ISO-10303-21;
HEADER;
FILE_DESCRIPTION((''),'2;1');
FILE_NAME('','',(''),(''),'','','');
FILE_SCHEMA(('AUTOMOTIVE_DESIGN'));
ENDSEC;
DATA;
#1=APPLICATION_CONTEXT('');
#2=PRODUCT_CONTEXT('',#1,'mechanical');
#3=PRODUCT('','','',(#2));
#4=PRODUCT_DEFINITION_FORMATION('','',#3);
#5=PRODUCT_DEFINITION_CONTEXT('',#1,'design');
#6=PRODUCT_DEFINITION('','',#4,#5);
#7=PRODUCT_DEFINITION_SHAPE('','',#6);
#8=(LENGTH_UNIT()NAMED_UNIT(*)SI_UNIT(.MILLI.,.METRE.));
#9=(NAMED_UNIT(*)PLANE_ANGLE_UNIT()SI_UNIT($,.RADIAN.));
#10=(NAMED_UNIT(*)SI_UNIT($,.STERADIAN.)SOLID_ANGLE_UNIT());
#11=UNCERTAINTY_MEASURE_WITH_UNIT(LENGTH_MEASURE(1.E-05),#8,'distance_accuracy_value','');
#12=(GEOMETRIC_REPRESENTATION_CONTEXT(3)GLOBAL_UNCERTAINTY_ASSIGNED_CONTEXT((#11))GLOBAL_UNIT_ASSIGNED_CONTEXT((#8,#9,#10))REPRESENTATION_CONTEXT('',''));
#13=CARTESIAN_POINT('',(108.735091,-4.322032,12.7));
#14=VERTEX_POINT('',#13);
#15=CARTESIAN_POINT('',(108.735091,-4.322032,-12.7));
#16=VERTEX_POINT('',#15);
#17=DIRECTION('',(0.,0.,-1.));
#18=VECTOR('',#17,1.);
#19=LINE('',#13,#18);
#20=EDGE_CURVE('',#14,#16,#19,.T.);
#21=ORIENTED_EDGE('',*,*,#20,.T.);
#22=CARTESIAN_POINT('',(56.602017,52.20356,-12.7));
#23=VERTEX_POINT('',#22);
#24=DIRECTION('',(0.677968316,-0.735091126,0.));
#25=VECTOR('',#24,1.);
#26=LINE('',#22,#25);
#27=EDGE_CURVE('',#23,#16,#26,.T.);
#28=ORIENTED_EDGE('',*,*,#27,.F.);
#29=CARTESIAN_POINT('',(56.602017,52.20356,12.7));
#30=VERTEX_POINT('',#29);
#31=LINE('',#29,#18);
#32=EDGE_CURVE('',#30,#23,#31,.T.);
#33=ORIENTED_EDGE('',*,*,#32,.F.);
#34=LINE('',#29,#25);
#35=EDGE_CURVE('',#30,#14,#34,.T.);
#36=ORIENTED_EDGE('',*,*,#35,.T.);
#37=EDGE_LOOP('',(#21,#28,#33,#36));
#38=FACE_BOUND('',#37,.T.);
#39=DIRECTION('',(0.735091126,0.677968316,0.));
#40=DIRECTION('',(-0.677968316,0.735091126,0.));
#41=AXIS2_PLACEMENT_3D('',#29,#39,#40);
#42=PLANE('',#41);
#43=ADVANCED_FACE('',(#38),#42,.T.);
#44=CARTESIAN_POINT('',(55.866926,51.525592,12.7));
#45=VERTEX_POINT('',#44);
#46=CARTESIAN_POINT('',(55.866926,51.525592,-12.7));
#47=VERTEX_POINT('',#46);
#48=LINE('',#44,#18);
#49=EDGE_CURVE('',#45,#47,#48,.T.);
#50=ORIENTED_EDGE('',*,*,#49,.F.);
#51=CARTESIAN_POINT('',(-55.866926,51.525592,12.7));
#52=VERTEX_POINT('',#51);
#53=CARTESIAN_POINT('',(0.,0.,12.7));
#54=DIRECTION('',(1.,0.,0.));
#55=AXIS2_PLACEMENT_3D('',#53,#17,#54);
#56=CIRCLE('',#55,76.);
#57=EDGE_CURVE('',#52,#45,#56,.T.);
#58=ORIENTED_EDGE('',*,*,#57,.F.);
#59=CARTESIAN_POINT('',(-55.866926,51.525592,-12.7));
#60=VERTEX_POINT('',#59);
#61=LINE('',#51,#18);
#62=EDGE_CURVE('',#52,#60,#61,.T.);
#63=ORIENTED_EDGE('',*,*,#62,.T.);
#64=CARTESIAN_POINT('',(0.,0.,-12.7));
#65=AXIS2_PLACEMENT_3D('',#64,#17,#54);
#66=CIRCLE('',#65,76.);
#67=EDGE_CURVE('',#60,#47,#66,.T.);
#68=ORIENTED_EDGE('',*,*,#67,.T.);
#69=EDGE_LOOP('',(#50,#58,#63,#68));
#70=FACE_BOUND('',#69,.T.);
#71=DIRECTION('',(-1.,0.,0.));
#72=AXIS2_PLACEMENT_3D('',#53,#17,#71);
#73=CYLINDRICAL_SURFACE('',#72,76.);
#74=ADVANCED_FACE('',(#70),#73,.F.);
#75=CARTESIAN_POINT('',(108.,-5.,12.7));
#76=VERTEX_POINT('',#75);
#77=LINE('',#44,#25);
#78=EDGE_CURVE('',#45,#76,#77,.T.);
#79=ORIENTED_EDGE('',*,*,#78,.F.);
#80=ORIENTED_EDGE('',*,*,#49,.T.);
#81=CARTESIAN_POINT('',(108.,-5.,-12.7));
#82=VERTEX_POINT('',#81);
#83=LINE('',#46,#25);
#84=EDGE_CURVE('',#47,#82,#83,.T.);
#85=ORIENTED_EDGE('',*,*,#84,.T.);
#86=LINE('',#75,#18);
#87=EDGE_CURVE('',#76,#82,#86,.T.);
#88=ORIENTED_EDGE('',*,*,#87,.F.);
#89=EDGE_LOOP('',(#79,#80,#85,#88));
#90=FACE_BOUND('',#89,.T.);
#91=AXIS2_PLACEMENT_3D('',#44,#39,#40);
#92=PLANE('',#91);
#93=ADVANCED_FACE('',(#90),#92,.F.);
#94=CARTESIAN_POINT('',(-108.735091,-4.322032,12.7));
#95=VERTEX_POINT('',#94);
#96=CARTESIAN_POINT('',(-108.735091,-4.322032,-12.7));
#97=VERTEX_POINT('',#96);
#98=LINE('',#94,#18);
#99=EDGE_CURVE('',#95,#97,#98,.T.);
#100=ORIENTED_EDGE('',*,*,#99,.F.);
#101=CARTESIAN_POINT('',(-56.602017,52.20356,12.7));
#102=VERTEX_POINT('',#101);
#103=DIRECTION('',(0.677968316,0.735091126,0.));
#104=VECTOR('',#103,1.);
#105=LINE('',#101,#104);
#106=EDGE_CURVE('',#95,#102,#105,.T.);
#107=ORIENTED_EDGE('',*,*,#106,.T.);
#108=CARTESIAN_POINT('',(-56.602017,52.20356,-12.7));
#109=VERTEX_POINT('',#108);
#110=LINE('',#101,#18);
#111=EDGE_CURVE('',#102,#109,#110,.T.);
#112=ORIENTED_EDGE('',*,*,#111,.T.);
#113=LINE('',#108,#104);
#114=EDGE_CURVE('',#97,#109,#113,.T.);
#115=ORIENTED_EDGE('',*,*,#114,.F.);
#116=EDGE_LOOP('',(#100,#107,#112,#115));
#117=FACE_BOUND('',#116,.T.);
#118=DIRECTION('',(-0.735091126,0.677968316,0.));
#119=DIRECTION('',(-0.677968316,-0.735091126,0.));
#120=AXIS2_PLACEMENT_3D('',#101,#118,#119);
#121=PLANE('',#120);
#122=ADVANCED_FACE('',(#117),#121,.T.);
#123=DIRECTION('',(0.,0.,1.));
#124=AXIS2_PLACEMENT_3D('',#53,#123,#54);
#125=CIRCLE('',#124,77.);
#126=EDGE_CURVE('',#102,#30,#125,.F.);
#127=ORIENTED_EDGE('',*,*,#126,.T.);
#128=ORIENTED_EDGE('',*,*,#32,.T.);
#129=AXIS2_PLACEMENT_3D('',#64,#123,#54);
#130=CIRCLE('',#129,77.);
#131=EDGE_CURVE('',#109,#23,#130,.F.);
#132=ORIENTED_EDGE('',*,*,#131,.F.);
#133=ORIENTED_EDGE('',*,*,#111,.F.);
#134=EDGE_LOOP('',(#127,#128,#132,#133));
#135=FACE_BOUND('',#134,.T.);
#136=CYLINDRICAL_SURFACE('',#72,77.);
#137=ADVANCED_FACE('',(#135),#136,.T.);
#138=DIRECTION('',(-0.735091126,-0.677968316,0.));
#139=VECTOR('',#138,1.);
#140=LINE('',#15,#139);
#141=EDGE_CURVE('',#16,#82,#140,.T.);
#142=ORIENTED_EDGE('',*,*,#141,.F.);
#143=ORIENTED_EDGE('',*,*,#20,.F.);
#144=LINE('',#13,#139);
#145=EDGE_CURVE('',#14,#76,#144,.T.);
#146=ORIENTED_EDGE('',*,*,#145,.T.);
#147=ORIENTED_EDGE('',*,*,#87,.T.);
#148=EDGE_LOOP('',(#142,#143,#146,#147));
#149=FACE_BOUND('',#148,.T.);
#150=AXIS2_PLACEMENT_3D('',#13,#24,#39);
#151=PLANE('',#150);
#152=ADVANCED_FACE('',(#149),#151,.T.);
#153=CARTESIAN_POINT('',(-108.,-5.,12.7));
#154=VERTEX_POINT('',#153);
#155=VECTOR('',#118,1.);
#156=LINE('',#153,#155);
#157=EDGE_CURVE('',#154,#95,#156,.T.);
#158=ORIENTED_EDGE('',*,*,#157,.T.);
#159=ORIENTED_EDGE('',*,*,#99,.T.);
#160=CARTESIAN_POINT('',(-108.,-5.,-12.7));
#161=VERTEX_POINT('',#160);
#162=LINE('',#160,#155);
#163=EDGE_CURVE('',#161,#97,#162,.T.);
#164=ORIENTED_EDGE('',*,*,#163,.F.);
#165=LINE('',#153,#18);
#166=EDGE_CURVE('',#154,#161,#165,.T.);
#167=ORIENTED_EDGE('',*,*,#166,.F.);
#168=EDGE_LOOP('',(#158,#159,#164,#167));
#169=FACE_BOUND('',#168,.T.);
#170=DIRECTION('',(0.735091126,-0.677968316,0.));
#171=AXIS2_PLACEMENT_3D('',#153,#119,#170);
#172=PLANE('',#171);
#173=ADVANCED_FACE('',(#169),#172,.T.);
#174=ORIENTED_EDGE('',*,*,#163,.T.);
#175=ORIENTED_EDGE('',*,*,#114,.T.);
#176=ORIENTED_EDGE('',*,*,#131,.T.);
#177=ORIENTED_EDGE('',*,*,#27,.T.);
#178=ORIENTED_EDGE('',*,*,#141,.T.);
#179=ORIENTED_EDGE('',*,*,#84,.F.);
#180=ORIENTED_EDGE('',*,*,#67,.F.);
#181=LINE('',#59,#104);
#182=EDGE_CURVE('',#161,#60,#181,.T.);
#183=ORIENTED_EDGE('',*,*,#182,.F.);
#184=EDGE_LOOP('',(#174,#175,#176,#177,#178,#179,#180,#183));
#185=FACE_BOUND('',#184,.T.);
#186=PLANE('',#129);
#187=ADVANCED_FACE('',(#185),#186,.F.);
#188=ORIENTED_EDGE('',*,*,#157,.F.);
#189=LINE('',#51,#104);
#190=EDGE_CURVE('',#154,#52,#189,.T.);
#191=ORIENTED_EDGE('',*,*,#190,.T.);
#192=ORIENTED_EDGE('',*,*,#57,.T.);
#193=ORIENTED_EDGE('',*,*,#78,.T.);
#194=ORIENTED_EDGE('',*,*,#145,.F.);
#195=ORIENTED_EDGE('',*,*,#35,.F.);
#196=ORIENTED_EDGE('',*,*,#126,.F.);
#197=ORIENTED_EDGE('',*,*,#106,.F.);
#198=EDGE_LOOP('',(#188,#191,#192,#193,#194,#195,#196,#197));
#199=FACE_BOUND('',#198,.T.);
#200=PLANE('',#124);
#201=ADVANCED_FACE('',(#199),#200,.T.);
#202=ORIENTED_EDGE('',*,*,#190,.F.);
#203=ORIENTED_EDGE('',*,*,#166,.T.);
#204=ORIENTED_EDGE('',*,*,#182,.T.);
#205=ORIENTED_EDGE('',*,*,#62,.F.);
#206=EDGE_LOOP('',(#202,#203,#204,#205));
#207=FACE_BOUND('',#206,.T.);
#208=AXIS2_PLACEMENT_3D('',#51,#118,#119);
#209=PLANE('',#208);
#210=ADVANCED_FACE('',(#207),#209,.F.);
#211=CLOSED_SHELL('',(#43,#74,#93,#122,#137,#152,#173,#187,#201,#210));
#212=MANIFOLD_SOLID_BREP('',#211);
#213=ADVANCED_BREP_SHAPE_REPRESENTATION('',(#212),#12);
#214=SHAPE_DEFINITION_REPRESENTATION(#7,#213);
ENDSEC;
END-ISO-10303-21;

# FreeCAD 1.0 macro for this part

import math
import FreeCAD as App
import Part
import Sketcher

V = App.Vector

doc = App.newDocument("Part")
params = doc.addObject("Spreadsheet::Sheet", "Params")
for row, (alias, value) in enumerate([
    ("sketch1_radius", "77 mm"),
    ("sketch1_radius2", "76 mm"),
    ("pad1_length", "25.4 mm"),
], start=1):
    params.set(f"A{row}", alias)
    params.set(f"B{row}", "=" + value)
    params.setAlias(f"B{row}", alias)

body = doc.addObject("PartDesign::Body", "Body")

# Sketch on XY plane
sketch1 = body.newObject("Sketcher::SketchObject", "Sketch")
sketch1.AttachmentSupport = (doc.getObject("XY_Plane"), [""])
sketch1.MapMode = "FlatFace"
sketch1.addGeometry(Part.LineSegment(V(55.9, 51.5, 0), V(108, -5, 0)), False)
sketch1.addGeometry(Part.LineSegment(V(108, -5, 0), V(108.7, -4.3, 0)), False)
sketch1.addGeometry(Part.LineSegment(V(108.7, -4.3, 0), V(56.6, 52.2, 0)), False)
sketch1.addGeometry(Part.ArcOfCircle(Part.Circle(V(0, 0, 0), V(0, 0, 1), 77), math.radians(43), math.radians(137)), False)
sketch1.addGeometry(Part.LineSegment(V(-56.6, 52.2, 0), V(-108.7, -4.3, 0)), False)
sketch1.addGeometry(Part.LineSegment(V(-108.7, -4.3, 0), V(-108, -5, 0)), False)
sketch1.addGeometry(Part.LineSegment(V(-108, -5, 0), V(-55.9, 51.5, 0)), False)
sketch1.addGeometry(Part.ArcOfCircle(Part.Circle(V(0, 0, 0), V(0, 0, 1), 76), math.radians(43), math.radians(137)), False)
sketch1.addConstraint(Sketcher.Constraint("Coincident", 0, 2, 1, 1))
sketch1.addConstraint(Sketcher.Constraint("Coincident", 1, 2, 2, 1))
sketch1.addConstraint(Sketcher.Constraint("Tangent", 2, 2, 3, 1))
sketch1.addConstraint(Sketcher.Constraint("Tangent", 3, 2, 4, 1))
sketch1.addConstraint(Sketcher.Constraint("Coincident", 4, 2, 5, 1))
sketch1.addConstraint(Sketcher.Constraint("Coincident", 5, 2, 6, 1))
sketch1.addConstraint(Sketcher.Constraint("Tangent", 6, 2, 7, 2))
sketch1.addConstraint(Sketcher.Constraint("Tangent", 7, 1, 0, 1))
sketch1.addConstraint(Sketcher.Constraint("Coincident", 3, 3, -1, 1))
sketch1.addConstraint(Sketcher.Constraint("Coincident", 7, 3, -1, 1))
sketch1.addConstraint(Sketcher.Constraint("Symmetric", 1, 2, 4, 2, -2))
sketch1.addConstraint(Sketcher.Constraint("Symmetric", 0, 2, 5, 2, -2))
sketch1.addConstraint(Sketcher.Constraint("Perpendicular", 0, 1))
sketch1.addConstraint(Sketcher.Constraint("Perpendicular", 1, 2))
sketch1.addConstraint(Sketcher.Constraint("Radius", 3, 77.0))
sketch1.addConstraint(Sketcher.Constraint("Radius", 7, 76.0))
sketch1.addConstraint(Sketcher.Constraint("DistanceX", -1, 1, 0, 2, 108.0))
sketch1.addConstraint(Sketcher.Constraint("DistanceY", 0, 2, -1, 1, 5.0))
sketch1.setExpression("Constraints[14]", "Params.sketch1_radius")
sketch1.setExpression("Constraints[15]", "Params.sketch1_radius2")
pad1 = body.newObject("PartDesign::Pad", "Pad")
pad1.Profile = sketch1
pad1.setExpression("Length", "Params.pad1_length")
pad1.Midplane = True

doc.recompute()
